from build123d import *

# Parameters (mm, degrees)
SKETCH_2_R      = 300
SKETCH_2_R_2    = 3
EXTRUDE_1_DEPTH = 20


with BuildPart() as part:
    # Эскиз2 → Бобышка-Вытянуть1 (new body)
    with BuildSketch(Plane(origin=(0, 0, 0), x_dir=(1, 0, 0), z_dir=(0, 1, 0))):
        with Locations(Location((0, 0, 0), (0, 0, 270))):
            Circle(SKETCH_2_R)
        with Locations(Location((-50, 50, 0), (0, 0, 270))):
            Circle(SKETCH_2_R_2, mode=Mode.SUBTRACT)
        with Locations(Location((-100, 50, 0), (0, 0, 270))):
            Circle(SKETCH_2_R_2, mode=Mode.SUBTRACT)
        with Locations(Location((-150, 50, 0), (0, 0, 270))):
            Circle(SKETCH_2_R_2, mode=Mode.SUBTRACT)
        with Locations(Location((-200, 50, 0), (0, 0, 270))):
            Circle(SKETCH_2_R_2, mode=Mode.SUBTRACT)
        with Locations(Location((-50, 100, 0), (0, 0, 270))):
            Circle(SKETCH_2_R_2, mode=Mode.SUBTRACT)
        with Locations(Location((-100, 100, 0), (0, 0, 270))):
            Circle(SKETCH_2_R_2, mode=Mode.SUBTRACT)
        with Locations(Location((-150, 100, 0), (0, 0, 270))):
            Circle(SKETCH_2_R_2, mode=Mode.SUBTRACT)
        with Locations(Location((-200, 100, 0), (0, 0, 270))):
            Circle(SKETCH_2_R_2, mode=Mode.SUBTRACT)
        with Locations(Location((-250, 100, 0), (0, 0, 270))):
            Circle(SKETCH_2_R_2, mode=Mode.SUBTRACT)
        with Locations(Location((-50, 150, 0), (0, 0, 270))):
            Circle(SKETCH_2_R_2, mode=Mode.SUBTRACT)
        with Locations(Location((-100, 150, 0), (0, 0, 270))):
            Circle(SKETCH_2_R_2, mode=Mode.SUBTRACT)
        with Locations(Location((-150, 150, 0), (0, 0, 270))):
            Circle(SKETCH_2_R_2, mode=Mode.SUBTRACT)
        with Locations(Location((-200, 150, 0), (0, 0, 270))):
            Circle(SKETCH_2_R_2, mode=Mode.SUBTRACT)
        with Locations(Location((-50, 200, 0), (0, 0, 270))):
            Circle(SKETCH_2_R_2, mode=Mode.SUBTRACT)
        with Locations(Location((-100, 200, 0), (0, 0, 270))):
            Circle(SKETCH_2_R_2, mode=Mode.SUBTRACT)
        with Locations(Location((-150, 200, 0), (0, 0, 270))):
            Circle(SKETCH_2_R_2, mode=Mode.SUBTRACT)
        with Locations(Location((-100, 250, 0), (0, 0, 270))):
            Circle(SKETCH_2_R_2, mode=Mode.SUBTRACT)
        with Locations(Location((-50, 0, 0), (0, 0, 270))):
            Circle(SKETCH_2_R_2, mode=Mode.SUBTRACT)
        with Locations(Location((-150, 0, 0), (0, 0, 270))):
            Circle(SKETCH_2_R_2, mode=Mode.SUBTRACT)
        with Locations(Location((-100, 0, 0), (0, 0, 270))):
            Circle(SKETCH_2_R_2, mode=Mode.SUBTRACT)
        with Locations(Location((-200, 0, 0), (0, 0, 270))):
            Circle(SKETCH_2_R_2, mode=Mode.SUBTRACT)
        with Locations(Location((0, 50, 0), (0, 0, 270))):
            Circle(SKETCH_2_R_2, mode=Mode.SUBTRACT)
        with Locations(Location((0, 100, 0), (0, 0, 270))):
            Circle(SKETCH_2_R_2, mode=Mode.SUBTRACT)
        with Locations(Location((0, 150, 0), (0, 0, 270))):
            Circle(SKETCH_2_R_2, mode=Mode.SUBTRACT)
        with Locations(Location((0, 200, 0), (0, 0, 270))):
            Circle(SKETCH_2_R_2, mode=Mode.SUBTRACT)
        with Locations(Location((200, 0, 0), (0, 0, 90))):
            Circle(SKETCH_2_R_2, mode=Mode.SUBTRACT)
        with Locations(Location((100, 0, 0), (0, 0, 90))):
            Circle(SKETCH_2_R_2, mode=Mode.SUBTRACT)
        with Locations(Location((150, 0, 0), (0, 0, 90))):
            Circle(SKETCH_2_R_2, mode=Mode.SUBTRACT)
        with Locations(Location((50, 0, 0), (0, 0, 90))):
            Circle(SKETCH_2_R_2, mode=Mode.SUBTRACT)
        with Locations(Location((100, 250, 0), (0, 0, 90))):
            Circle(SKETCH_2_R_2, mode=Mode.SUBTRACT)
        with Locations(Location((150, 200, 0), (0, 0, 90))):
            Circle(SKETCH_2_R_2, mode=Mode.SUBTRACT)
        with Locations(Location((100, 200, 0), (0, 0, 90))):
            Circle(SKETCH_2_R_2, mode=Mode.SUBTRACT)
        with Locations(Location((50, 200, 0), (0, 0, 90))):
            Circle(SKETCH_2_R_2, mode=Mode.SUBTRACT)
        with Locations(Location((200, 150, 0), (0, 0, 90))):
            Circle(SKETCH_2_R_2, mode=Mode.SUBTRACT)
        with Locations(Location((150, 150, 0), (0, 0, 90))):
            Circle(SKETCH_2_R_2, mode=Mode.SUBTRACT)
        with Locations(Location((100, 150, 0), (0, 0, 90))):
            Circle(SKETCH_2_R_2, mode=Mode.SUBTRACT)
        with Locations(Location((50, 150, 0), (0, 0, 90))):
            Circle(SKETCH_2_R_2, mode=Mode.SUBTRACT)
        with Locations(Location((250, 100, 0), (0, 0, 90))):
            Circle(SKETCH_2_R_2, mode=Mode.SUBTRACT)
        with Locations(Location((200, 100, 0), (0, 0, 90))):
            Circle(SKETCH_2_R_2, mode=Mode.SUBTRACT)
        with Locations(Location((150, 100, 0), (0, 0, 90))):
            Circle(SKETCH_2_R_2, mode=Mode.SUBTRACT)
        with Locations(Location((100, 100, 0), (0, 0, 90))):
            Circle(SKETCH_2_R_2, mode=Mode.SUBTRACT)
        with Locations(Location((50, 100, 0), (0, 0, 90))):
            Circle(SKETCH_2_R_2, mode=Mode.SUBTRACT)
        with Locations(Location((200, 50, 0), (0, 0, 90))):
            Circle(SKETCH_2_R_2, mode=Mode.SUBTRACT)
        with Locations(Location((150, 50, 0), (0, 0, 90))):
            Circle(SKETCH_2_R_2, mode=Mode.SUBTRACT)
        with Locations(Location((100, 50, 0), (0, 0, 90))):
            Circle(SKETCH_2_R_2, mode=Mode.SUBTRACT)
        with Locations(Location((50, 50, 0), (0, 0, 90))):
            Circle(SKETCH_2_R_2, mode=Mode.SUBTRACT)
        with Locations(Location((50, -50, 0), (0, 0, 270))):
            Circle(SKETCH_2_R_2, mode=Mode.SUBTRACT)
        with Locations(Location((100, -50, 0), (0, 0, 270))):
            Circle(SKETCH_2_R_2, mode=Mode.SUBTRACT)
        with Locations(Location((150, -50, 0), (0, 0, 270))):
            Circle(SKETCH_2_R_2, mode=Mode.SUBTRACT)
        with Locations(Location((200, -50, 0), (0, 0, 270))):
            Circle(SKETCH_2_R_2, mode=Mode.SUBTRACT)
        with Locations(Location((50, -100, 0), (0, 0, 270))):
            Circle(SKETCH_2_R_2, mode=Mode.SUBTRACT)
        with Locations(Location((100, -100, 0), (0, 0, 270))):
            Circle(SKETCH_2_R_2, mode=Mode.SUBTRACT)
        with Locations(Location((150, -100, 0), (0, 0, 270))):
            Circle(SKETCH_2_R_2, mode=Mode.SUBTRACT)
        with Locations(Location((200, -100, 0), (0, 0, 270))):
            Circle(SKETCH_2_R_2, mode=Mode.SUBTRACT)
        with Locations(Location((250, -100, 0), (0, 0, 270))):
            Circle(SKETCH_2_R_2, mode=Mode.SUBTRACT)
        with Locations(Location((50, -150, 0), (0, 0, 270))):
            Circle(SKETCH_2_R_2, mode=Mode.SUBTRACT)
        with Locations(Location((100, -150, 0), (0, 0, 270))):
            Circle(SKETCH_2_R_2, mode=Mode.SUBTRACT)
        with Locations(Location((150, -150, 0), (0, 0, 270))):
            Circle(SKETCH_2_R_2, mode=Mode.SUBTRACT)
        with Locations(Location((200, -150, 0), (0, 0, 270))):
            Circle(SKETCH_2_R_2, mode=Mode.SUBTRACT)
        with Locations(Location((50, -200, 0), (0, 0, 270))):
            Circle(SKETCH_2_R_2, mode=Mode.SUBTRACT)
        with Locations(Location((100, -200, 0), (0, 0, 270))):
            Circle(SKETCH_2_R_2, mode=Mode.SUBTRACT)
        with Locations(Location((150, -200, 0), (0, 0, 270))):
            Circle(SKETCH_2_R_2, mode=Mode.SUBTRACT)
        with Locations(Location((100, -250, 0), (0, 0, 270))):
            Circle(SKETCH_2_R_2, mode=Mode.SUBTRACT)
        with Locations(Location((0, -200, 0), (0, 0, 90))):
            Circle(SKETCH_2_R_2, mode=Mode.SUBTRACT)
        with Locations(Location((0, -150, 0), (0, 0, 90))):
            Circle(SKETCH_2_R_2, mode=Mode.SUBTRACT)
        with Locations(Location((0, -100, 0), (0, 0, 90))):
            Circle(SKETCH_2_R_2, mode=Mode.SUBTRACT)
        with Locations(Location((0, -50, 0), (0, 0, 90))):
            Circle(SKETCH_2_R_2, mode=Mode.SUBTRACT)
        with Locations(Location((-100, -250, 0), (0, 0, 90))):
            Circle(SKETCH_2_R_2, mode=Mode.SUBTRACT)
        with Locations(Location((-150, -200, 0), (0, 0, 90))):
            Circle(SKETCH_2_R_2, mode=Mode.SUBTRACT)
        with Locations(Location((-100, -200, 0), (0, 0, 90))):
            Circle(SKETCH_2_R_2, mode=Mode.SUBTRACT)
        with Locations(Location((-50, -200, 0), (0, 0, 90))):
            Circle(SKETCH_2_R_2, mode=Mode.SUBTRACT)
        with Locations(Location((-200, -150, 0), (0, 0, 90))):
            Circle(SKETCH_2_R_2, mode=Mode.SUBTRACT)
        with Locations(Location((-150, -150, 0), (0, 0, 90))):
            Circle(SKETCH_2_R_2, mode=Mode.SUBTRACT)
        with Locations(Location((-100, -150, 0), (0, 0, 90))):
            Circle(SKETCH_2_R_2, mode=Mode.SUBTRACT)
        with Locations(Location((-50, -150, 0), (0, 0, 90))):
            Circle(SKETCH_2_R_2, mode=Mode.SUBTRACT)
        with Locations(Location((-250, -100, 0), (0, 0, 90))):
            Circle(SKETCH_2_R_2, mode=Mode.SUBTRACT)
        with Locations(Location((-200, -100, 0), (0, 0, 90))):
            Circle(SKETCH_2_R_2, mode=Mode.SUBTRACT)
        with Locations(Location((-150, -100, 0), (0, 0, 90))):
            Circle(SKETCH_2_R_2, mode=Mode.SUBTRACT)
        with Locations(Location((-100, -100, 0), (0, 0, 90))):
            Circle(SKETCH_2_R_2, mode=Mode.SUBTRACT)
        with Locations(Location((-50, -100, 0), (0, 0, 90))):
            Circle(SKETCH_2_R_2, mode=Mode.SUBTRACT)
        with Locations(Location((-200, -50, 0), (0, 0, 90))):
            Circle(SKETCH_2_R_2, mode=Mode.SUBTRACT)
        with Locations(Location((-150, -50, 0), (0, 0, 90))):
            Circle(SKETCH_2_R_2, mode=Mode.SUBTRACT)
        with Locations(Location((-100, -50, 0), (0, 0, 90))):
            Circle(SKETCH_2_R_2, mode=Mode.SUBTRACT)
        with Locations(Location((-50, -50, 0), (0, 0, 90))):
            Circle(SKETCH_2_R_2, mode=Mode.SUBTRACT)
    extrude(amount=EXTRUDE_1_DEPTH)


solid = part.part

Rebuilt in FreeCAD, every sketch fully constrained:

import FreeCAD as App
import Part
import Sketcher

doc = App.newDocument("Part")
body = doc.addObject("PartDesign::Body", "Body")

# Sketch on XZ plane
sketch1 = body.newObject("Sketcher::SketchObject", "Sketch")
sketch1.AttachmentSupport = (doc.getObject("XZ_Plane"), [""])
sketch1.MapMode = "FlatFace"
sketch1.addGeometry([
    Part.Circle(App.Vector(0, 0, 0), App.Vector(0, 0, 1), 300),  # 0
    Part.Circle(App.Vector(-200, -150, 0), App.Vector(0, 0, 1), 3),  # 1
    Part.Circle(App.Vector(-150, -200, 0), App.Vector(0, 0, 1), 3),  # 2
    Part.Circle(App.Vector(-150, -150, 0), App.Vector(0, 0, 1), 3),  # 3
    Part.Circle(App.Vector(-250, -100, 0), App.Vector(0, 0, 1), 3),  # 4
    Part.Circle(App.Vector(-200, -100, 0), App.Vector(0, 0, 1), 3),  # 5
    Part.Circle(App.Vector(-200, -50, 0), App.Vector(0, 0, 1), 3),  # 6
    Part.Circle(App.Vector(-150, -100, 0), App.Vector(0, 0, 1), 3),  # 7
    Part.Circle(App.Vector(-150, -50, 0), App.Vector(0, 0, 1), 3),  # 8
    Part.Circle(App.Vector(-100, -250, 0), App.Vector(0, 0, 1), 3),  # 9
    Part.Circle(App.Vector(-100, -200, 0), App.Vector(0, 0, 1), 3),  # 10
    Part.Circle(App.Vector(-100, -150, 0), App.Vector(0, 0, 1), 3),  # 11
    Part.Circle(App.Vector(-50, -200, 0), App.Vector(0, 0, 1), 3),  # 12
    Part.Circle(App.Vector(0, -200, 0), App.Vector(0, 0, 1), 3),  # 13
    Part.Circle(App.Vector(-50, -150, 0), App.Vector(0, 0, 1), 3),  # 14
    Part.Circle(App.Vector(0, -150, 0), App.Vector(0, 0, 1), 3),  # 15
    Part.Circle(App.Vector(-100, -100, 0), App.Vector(0, 0, 1), 3),  # 16
    Part.Circle(App.Vector(-100, -50, 0), App.Vector(0, 0, 1), 3),  # 17
    Part.Circle(App.Vector(-50, -100, 0), App.Vector(0, 0, 1), 3),  # 18
    Part.Circle(App.Vector(0, -100, 0), App.Vector(0, 0, 1), 3),  # 19
    Part.Circle(App.Vector(-50, -50, 0), App.Vector(0, 0, 1), 3),  # 20
    Part.Circle(App.Vector(0, -50, 0), App.Vector(0, 0, 1), 3),  # 21
    Part.Circle(App.Vector(-200, 0, 0), App.Vector(0, 0, 1), 3),  # 22
    Part.Circle(App.Vector(-200, 50, 0), App.Vector(0, 0, 1), 3),  # 23
    Part.Circle(App.Vector(-250, 100, 0), App.Vector(0, 0, 1), 3),  # 24
    Part.Circle(App.Vector(-200, 100, 0), App.Vector(0, 0, 1), 3),  # 25
    Part.Circle(App.Vector(-150, 0, 0), App.Vector(0, 0, 1), 3),  # 26
    Part.Circle(App.Vector(-150, 50, 0), App.Vector(0, 0, 1), 3),  # 27
    Part.Circle(App.Vector(-150, 100, 0), App.Vector(0, 0, 1), 3),  # 28
    Part.Circle(App.Vector(-200, 150, 0), App.Vector(0, 0, 1), 3),  # 29
    Part.Circle(App.Vector(-150, 150, 0), App.Vector(0, 0, 1), 3),  # 30
    Part.Circle(App.Vector(-150, 200, 0), App.Vector(0, 0, 1), 3),  # 31
    Part.Circle(App.Vector(-100, 0, 0), App.Vector(0, 0, 1), 3),  # 32
    Part.Circle(App.Vector(-100, 50, 0), App.Vector(0, 0, 1), 3),  # 33
    Part.Circle(App.Vector(-100, 100, 0), App.Vector(0, 0, 1), 3),  # 34
    Part.Circle(App.Vector(-50, 0, 0), App.Vector(0, 0, 1), 3),  # 35
    Part.Circle(App.Vector(-50, 50, 0), App.Vector(0, 0, 1), 3),  # 36
    Part.Circle(App.Vector(-50, 100, 0), App.Vector(0, 0, 1), 3),  # 37
    Part.Circle(App.Vector(-100, 150, 0), App.Vector(0, 0, 1), 3),  # 38
    Part.Circle(App.Vector(-100, 200, 0), App.Vector(0, 0, 1), 3),  # 39
    Part.Circle(App.Vector(-100, 250, 0), App.Vector(0, 0, 1), 3),  # 40
    Part.Circle(App.Vector(-50, 150, 0), App.Vector(0, 0, 1), 3),  # 41
    Part.Circle(App.Vector(-50, 200, 0), App.Vector(0, 0, 1), 3),  # 42
    Part.Circle(App.Vector(50, -200, 0), App.Vector(0, 0, 1), 3),  # 43
    Part.Circle(App.Vector(50, -150, 0), App.Vector(0, 0, 1), 3),  # 44
    Part.Circle(App.Vector(100, -250, 0), App.Vector(0, 0, 1), 3),  # 45
    Part.Circle(App.Vector(100, -200, 0), App.Vector(0, 0, 1), 3),  # 46
    Part.Circle(App.Vector(100, -150, 0), App.Vector(0, 0, 1), 3),  # 47
    Part.Circle(App.Vector(50, -100, 0), App.Vector(0, 0, 1), 3),  # 48
    Part.Circle(App.Vector(50, -50, 0), App.Vector(0, 0, 1), 3),  # 49
    Part.Circle(App.Vector(100, -100, 0), App.Vector(0, 0, 1), 3),  # 50
    Part.Circle(App.Vector(100, -50, 0), App.Vector(0, 0, 1), 3),  # 51
    Part.Circle(App.Vector(100, 0, 0), App.Vector(0, 0, 1), 3),  # 52
    Part.Circle(App.Vector(150, -200, 0), App.Vector(0, 0, 1), 3),  # 53
    Part.Circle(App.Vector(150, -150, 0), App.Vector(0, 0, 1), 3),  # 54
    Part.Circle(App.Vector(200, -150, 0), App.Vector(0, 0, 1), 3),  # 55
    Part.Circle(App.Vector(150, -100, 0), App.Vector(0, 0, 1), 3),  # 56
    Part.Circle(App.Vector(150, -50, 0), App.Vector(0, 0, 1), 3),  # 57
    Part.Circle(App.Vector(150, 0, 0), App.Vector(0, 0, 1), 3),  # 58
    Part.Circle(App.Vector(200, -100, 0), App.Vector(0, 0, 1), 3),  # 59
    Part.Circle(App.Vector(250, -100, 0), App.Vector(0, 0, 1), 3),  # 60
    Part.Circle(App.Vector(200, -50, 0), App.Vector(0, 0, 1), 3),  # 61
    Part.Circle(App.Vector(200, 0, 0), App.Vector(0, 0, 1), 3),  # 62
    Part.Circle(App.Vector(0, 50, 0), App.Vector(0, 0, 1), 3),  # 63
    Part.Circle(App.Vector(50, 0, 0), App.Vector(0, 0, 1), 3),  # 64
    Part.Circle(App.Vector(50, 50, 0), App.Vector(0, 0, 1), 3),  # 65
    Part.Circle(App.Vector(0, 100, 0), App.Vector(0, 0, 1), 3),  # 66
    Part.Circle(App.Vector(50, 100, 0), App.Vector(0, 0, 1), 3),  # 67
    Part.Circle(App.Vector(100, 50, 0), App.Vector(0, 0, 1), 3),  # 68
    Part.Circle(App.Vector(100, 100, 0), App.Vector(0, 0, 1), 3),  # 69
    Part.Circle(App.Vector(0, 150, 0), App.Vector(0, 0, 1), 3),  # 70
    Part.Circle(App.Vector(50, 150, 0), App.Vector(0, 0, 1), 3),  # 71
    Part.Circle(App.Vector(0, 200, 0), App.Vector(0, 0, 1), 3),  # 72
    Part.Circle(App.Vector(50, 200, 0), App.Vector(0, 0, 1), 3),  # 73
    Part.Circle(App.Vector(100, 150, 0), App.Vector(0, 0, 1), 3),  # 74
    Part.Circle(App.Vector(100, 200, 0), App.Vector(0, 0, 1), 3),  # 75
    Part.Circle(App.Vector(100, 250, 0), App.Vector(0, 0, 1), 3),  # 76
    Part.Circle(App.Vector(150, 50, 0), App.Vector(0, 0, 1), 3),  # 77
    Part.Circle(App.Vector(150, 100, 0), App.Vector(0, 0, 1), 3),  # 78
    Part.Circle(App.Vector(200, 50, 0), App.Vector(0, 0, 1), 3),  # 79
    Part.Circle(App.Vector(200, 100, 0), App.Vector(0, 0, 1), 3),  # 80
    Part.Circle(App.Vector(250, 100, 0), App.Vector(0, 0, 1), 3),  # 81
    Part.Circle(App.Vector(150, 150, 0), App.Vector(0, 0, 1), 3),  # 82
    Part.Circle(App.Vector(150, 200, 0), App.Vector(0, 0, 1), 3),  # 83
    Part.Circle(App.Vector(200, 150, 0), App.Vector(0, 0, 1), 3),  # 84
], False)
sketch1.addConstraint([
    Sketcher.Constraint("Coincident", 0, 3, -1, 1),
    Sketcher.Constraint("Equal", 1, 2),
    Sketcher.Constraint("Equal", 2, 3),
    Sketcher.Constraint("Equal", 3, 4),
    Sketcher.Constraint("Equal", 4, 5),
    Sketcher.Constraint("Equal", 5, 6),
    Sketcher.Constraint("Equal", 6, 7),
    Sketcher.Constraint("Equal", 7, 8),
    Sketcher.Constraint("Equal", 8, 9),
    Sketcher.Constraint("Equal", 9, 10),
    Sketcher.Constraint("Equal", 10, 11),
    Sketcher.Constraint("Equal", 11, 12),
    Sketcher.Constraint("Equal", 12, 13),
    Sketcher.Constraint("Equal", 13, 14),
    Sketcher.Constraint("Equal", 14, 15),
    Sketcher.Constraint("Equal", 15, 16),
    Sketcher.Constraint("Equal", 16, 17),
    Sketcher.Constraint("Equal", 17, 18),
    Sketcher.Constraint("Equal", 18, 19),
    Sketcher.Constraint("Equal", 19, 20),
    Sketcher.Constraint("Equal", 20, 21),
    Sketcher.Constraint("Equal", 21, 22),
    Sketcher.Constraint("Equal", 22, 23),
    Sketcher.Constraint("Equal", 23, 24),
    Sketcher.Constraint("Equal", 24, 25),
    Sketcher.Constraint("Equal", 25, 26),
    Sketcher.Constraint("Equal", 26, 27),
    Sketcher.Constraint("Equal", 27, 28),
    Sketcher.Constraint("Equal", 28, 29),
    Sketcher.Constraint("Equal", 29, 30),
    Sketcher.Constraint("Equal", 30, 31),
    Sketcher.Constraint("Equal", 31, 32),
    Sketcher.Constraint("Equal", 32, 33),
    Sketcher.Constraint("Equal", 33, 34),
    Sketcher.Constraint("Equal", 34, 35),
    Sketcher.Constraint("Equal", 35, 36),
    Sketcher.Constraint("Equal", 36, 37),
    Sketcher.Constraint("Equal", 37, 38),
    Sketcher.Constraint("Equal", 38, 39),
    Sketcher.Constraint("Equal", 39, 40),
    Sketcher.Constraint("Equal", 40, 41),
    Sketcher.Constraint("Equal", 41, 42),
    Sketcher.Constraint("Equal", 42, 43),
    Sketcher.Constraint("Equal", 43, 44),
    Sketcher.Constraint("Equal", 44, 45),
    Sketcher.Constraint("Equal", 45, 46),
    Sketcher.Constraint("Equal", 46, 47),
    Sketcher.Constraint("Equal", 47, 48),
    Sketcher.Constraint("Equal", 48, 49),
    Sketcher.Constraint("Equal", 49, 50),
    Sketcher.Constraint("Equal", 50, 51),
    Sketcher.Constraint("Equal", 51, 52),
    Sketcher.Constraint("Equal", 52, 53),
    Sketcher.Constraint("Equal", 53, 54),
    Sketcher.Constraint("Equal", 54, 55),
    Sketcher.Constraint("Equal", 55, 56),
    Sketcher.Constraint("Equal", 56, 57),
    Sketcher.Constraint("Equal", 57, 58),
    Sketcher.Constraint("Equal", 58, 59),
    Sketcher.Constraint("Equal", 59, 60),
    Sketcher.Constraint("Equal", 60, 61),
    Sketcher.Constraint("Equal", 61, 62),
    Sketcher.Constraint("Equal", 62, 63),
    Sketcher.Constraint("Equal", 63, 64),
    Sketcher.Constraint("Equal", 64, 65),
    Sketcher.Constraint("Equal", 65, 66),
    Sketcher.Constraint("Equal", 66, 67),
    Sketcher.Constraint("Equal", 67, 68),
    Sketcher.Constraint("Equal", 68, 69),
    Sketcher.Constraint("Equal", 69, 70),
    Sketcher.Constraint("Equal", 70, 71),
    Sketcher.Constraint("Equal", 71, 72),
    Sketcher.Constraint("Equal", 72, 73),
    Sketcher.Constraint("Equal", 73, 74),
    Sketcher.Constraint("Equal", 74, 75),
    Sketcher.Constraint("Equal", 75, 76),
    Sketcher.Constraint("Equal", 76, 77),
    Sketcher.Constraint("Equal", 77, 78),
    Sketcher.Constraint("Equal", 78, 79),
    Sketcher.Constraint("Equal", 79, 80),
    Sketcher.Constraint("Equal", 80, 81),
    Sketcher.Constraint("Equal", 81, 82),
    Sketcher.Constraint("Equal", 82, 83),
    Sketcher.Constraint("Equal", 83, 84),
    Sketcher.Constraint("Symmetric", 42, 3, 43, 3, -1, 1),
    Sketcher.Constraint("Symmetric", 41, 3, 44, 3, -1, 1),
    Sketcher.Constraint("Symmetric", 40, 3, 45, 3, -1, 1),
    Sketcher.Constraint("Symmetric", 39, 3, 46, 3, -1, 1),
    Sketcher.Constraint("Symmetric", 38, 3, 47, 3, -1, 1),
    Sketcher.Constraint("Symmetric", 37, 3, 48, 3, -1, 1),
    Sketcher.Constraint("Symmetric", 36, 3, 49, 3, -1, 1),
    Sketcher.Constraint("Symmetric", 34, 3, 50, 3, -1, 1),
    Sketcher.Constraint("Symmetric", 33, 3, 51, 3, -1, 1),
    Sketcher.Constraint("Symmetric", 32, 3, 52, 3, -1, 1),
    Sketcher.Constraint("Symmetric", 31, 3, 53, 3, -1, 1),
    Sketcher.Constraint("Symmetric", 30, 3, 54, 3, -1, 1),
    Sketcher.Constraint("Symmetric", 29, 3, 55, 3, -1, 1),
    Sketcher.Constraint("Symmetric", 28, 3, 56, 3, -1, 1),
    Sketcher.Constraint("Symmetric", 27, 3, 57, 3, -1, 1),
    Sketcher.Constraint("Symmetric", 26, 3, 58, 3, -1, 1),
    Sketcher.Constraint("Symmetric", 25, 3, 59, 3, -1, 1),
    Sketcher.Constraint("Symmetric", 24, 3, 60, 3, -1, 1),
    Sketcher.Constraint("Symmetric", 23, 3, 61, 3, -1, 1),
    Sketcher.Constraint("Symmetric", 22, 3, 62, 3, -1, 1),
    Sketcher.Constraint("Symmetric", 21, 3, 63, 3, -1, 1),
    Sketcher.Constraint("Symmetric", 35, 3, 64, 3, -1, 1),
    Sketcher.Constraint("Symmetric", 20, 3, 65, 3, -1, 1),
    Sketcher.Constraint("Symmetric", 19, 3, 66, 3, -1, 1),
    Sketcher.Constraint("Symmetric", 18, 3, 67, 3, -1, 1),
    Sketcher.Constraint("Symmetric", 17, 3, 68, 3, -1, 1),
    Sketcher.Constraint("Symmetric", 16, 3, 69, 3, -1, 1),
    Sketcher.Constraint("Symmetric", 15, 3, 70, 3, -1, 1),
    Sketcher.Constraint("Symmetric", 14, 3, 71, 3, -1, 1),
    Sketcher.Constraint("Symmetric", 13, 3, 72, 3, -1, 1),
    Sketcher.Constraint("Symmetric", 12, 3, 73, 3, -1, 1),
    Sketcher.Constraint("Symmetric", 11, 3, 74, 3, -1, 1),
    Sketcher.Constraint("Symmetric", 10, 3, 75, 3, -1, 1),
    Sketcher.Constraint("Symmetric", 9, 3, 76, 3, -1, 1),
    Sketcher.Constraint("Symmetric", 8, 3, 77, 3, -1, 1),
    Sketcher.Constraint("Symmetric", 7, 3, 78, 3, -1, 1),
    Sketcher.Constraint("Symmetric", 6, 3, 79, 3, -1, 1),
    Sketcher.Constraint("Symmetric", 5, 3, 80, 3, -1, 1),
    Sketcher.Constraint("Symmetric", 4, 3, 81, 3, -1, 1),
    Sketcher.Constraint("Symmetric", 3, 3, 82, 3, -1, 1),
    Sketcher.Constraint("Symmetric", 2, 3, 83, 3, -1, 1),
    Sketcher.Constraint("Symmetric", 1, 3, 84, 3, -1, 1),
    Sketcher.Constraint("Symmetric", 12, 3, 43, 3, -2),
    Sketcher.Constraint("Symmetric", 14, 3, 44, 3, -2),
    Sketcher.Constraint("Symmetric", 9, 3, 45, 3, -2),
    Sketcher.Constraint("Symmetric", 10, 3, 46, 3, -2),
    Sketcher.Constraint("Symmetric", 11, 3, 47, 3, -2),
    Sketcher.Constraint("Symmetric", 18, 3, 48, 3, -2),
    Sketcher.Constraint("Symmetric", 20, 3, 49, 3, -2),
    Sketcher.Constraint("Symmetric", 16, 3, 50, 3, -2),
    Sketcher.Constraint("Symmetric", 17, 3, 51, 3, -2),
    Sketcher.Constraint("Symmetric", 2, 3, 53, 3, -2),
    Sketcher.Constraint("Symmetric", 3, 3, 54, 3, -2),
    Sketcher.Constraint("Symmetric", 1, 3, 55, 3, -2),
    Sketcher.Constraint("Symmetric", 7, 3, 56, 3, -2),
    Sketcher.Constraint("Symmetric", 8, 3, 57, 3, -2),
    Sketcher.Constraint("Symmetric", 5, 3, 59, 3, -2),
    Sketcher.Constraint("Symmetric", 4, 3, 60, 3, -2),
    Sketcher.Constraint("Symmetric", 6, 3, 61, 3, -2),
    Sketcher.Constraint("PointOnObject", 13, 3, -2),
    Sketcher.Constraint("PointOnObject", 15, 3, -2),
    Sketcher.Constraint("PointOnObject", 19, 3, -2),
    Sketcher.Constraint("PointOnObject", 21, 3, -2),
    Sketcher.Constraint("PointOnObject", 22, 3, -1),
    Sketcher.Constraint("PointOnObject", 26, 3, -1),
    Sketcher.Constraint("PointOnObject", 32, 3, -1),
    Sketcher.Constraint("PointOnObject", 35, 3, -1),
    Sketcher.Constraint("Horizontal", 1, 3, 3, 3),
    Sketcher.Constraint("Horizontal", 4, 3, 5, 3),
    Sketcher.Constraint("Horizontal", 5, 3, 7, 3),
    Sketcher.Constraint("Horizontal", 6, 3, 8, 3),
    Sketcher.Constraint("Horizontal", 2, 3, 10, 3),
    Sketcher.Constraint("Horizontal", 3, 3, 11, 3),
    Sketcher.Constraint("Horizontal", 10, 3, 12, 3),
    Sketcher.Constraint("Horizontal", 12, 3, 13, 3),
    Sketcher.Constraint("Horizontal", 11, 3, 14, 3),
    Sketcher.Constraint("Horizontal", 14, 3, 15, 3),
    Sketcher.Constraint("Horizontal", 7, 3, 16, 3),
    Sketcher.Constraint("Horizontal", 8, 3, 17, 3),
    Sketcher.Constraint("Horizontal", 16, 3, 18, 3),
    Sketcher.Constraint("Horizontal", 18, 3, 19, 3),
    Sketcher.Constraint("Horizontal", 17, 3, 20, 3),
    Sketcher.Constraint("Horizontal", 20, 3, 21, 3),
    Sketcher.Constraint("Vertical", 2, 3, 3, 3),
    Sketcher.Constraint("Vertical", 1, 3, 5, 3),
    Sketcher.Constraint("Vertical", 5, 3, 6, 3),
    Sketcher.Constraint("Vertical", 3, 3, 7, 3),
    Sketcher.Constraint("Vertical", 7, 3, 8, 3),
    Sketcher.Constraint("Vertical", 9, 3, 10, 3),
    Sketcher.Constraint("Vertical", 10, 3, 11, 3),
    Sketcher.Constraint("Vertical", 12, 3, 14, 3),
    Sketcher.Constraint("Vertical", 11, 3, 16, 3),
    Sketcher.Constraint("Vertical", 16, 3, 17, 3),
    Sketcher.Constraint("Vertical", 14, 3, 18, 3),
    Sketcher.Constraint("Vertical", 18, 3, 20, 3),
    Sketcher.Constraint("Vertical", 6, 3, 22, 3),
    Sketcher.Constraint("Vertical", 8, 3, 26, 3),
    Sketcher.Constraint("Vertical", 17, 3, 32, 3),
    Sketcher.Constraint("Vertical", 20, 3, 35, 3),
    Sketcher.Constraint("Diameter", 0, 600.0),
    Sketcher.Constraint("Diameter", 1, 6.0),
    Sketcher.Constraint("DistanceX", 1, 3, -1, 1, 200.0),
    Sketcher.Constraint("DistanceY", 1, 3, -1, 1, 150.0),
    Sketcher.Constraint("DistanceX", 2, 3, -1, 1, 150.0),
    Sketcher.Constraint("DistanceY", 2, 3, -1, 1, 200.0),
    Sketcher.Constraint("DistanceX", 4, 3, -1, 1, 250.0),
    Sketcher.Constraint("DistanceY", 4, 3, -1, 1, 100.0),
    Sketcher.Constraint("DistanceY", 6, 3, -1, 1, 50.0),
    Sketcher.Constraint("DistanceX", 9, 3, -1, 1, 100.0),
    Sketcher.Constraint("DistanceY", 9, 3, -1, 1, 250.0),
    Sketcher.Constraint("DistanceX", 12, 3, -1, 1, 50.0),
])
pad1 = body.newObject("PartDesign::Pad", "Pad")
pad1.Profile = sketch1
pad1.Length = 20
pad1.Reversed = True

doc.recompute()
